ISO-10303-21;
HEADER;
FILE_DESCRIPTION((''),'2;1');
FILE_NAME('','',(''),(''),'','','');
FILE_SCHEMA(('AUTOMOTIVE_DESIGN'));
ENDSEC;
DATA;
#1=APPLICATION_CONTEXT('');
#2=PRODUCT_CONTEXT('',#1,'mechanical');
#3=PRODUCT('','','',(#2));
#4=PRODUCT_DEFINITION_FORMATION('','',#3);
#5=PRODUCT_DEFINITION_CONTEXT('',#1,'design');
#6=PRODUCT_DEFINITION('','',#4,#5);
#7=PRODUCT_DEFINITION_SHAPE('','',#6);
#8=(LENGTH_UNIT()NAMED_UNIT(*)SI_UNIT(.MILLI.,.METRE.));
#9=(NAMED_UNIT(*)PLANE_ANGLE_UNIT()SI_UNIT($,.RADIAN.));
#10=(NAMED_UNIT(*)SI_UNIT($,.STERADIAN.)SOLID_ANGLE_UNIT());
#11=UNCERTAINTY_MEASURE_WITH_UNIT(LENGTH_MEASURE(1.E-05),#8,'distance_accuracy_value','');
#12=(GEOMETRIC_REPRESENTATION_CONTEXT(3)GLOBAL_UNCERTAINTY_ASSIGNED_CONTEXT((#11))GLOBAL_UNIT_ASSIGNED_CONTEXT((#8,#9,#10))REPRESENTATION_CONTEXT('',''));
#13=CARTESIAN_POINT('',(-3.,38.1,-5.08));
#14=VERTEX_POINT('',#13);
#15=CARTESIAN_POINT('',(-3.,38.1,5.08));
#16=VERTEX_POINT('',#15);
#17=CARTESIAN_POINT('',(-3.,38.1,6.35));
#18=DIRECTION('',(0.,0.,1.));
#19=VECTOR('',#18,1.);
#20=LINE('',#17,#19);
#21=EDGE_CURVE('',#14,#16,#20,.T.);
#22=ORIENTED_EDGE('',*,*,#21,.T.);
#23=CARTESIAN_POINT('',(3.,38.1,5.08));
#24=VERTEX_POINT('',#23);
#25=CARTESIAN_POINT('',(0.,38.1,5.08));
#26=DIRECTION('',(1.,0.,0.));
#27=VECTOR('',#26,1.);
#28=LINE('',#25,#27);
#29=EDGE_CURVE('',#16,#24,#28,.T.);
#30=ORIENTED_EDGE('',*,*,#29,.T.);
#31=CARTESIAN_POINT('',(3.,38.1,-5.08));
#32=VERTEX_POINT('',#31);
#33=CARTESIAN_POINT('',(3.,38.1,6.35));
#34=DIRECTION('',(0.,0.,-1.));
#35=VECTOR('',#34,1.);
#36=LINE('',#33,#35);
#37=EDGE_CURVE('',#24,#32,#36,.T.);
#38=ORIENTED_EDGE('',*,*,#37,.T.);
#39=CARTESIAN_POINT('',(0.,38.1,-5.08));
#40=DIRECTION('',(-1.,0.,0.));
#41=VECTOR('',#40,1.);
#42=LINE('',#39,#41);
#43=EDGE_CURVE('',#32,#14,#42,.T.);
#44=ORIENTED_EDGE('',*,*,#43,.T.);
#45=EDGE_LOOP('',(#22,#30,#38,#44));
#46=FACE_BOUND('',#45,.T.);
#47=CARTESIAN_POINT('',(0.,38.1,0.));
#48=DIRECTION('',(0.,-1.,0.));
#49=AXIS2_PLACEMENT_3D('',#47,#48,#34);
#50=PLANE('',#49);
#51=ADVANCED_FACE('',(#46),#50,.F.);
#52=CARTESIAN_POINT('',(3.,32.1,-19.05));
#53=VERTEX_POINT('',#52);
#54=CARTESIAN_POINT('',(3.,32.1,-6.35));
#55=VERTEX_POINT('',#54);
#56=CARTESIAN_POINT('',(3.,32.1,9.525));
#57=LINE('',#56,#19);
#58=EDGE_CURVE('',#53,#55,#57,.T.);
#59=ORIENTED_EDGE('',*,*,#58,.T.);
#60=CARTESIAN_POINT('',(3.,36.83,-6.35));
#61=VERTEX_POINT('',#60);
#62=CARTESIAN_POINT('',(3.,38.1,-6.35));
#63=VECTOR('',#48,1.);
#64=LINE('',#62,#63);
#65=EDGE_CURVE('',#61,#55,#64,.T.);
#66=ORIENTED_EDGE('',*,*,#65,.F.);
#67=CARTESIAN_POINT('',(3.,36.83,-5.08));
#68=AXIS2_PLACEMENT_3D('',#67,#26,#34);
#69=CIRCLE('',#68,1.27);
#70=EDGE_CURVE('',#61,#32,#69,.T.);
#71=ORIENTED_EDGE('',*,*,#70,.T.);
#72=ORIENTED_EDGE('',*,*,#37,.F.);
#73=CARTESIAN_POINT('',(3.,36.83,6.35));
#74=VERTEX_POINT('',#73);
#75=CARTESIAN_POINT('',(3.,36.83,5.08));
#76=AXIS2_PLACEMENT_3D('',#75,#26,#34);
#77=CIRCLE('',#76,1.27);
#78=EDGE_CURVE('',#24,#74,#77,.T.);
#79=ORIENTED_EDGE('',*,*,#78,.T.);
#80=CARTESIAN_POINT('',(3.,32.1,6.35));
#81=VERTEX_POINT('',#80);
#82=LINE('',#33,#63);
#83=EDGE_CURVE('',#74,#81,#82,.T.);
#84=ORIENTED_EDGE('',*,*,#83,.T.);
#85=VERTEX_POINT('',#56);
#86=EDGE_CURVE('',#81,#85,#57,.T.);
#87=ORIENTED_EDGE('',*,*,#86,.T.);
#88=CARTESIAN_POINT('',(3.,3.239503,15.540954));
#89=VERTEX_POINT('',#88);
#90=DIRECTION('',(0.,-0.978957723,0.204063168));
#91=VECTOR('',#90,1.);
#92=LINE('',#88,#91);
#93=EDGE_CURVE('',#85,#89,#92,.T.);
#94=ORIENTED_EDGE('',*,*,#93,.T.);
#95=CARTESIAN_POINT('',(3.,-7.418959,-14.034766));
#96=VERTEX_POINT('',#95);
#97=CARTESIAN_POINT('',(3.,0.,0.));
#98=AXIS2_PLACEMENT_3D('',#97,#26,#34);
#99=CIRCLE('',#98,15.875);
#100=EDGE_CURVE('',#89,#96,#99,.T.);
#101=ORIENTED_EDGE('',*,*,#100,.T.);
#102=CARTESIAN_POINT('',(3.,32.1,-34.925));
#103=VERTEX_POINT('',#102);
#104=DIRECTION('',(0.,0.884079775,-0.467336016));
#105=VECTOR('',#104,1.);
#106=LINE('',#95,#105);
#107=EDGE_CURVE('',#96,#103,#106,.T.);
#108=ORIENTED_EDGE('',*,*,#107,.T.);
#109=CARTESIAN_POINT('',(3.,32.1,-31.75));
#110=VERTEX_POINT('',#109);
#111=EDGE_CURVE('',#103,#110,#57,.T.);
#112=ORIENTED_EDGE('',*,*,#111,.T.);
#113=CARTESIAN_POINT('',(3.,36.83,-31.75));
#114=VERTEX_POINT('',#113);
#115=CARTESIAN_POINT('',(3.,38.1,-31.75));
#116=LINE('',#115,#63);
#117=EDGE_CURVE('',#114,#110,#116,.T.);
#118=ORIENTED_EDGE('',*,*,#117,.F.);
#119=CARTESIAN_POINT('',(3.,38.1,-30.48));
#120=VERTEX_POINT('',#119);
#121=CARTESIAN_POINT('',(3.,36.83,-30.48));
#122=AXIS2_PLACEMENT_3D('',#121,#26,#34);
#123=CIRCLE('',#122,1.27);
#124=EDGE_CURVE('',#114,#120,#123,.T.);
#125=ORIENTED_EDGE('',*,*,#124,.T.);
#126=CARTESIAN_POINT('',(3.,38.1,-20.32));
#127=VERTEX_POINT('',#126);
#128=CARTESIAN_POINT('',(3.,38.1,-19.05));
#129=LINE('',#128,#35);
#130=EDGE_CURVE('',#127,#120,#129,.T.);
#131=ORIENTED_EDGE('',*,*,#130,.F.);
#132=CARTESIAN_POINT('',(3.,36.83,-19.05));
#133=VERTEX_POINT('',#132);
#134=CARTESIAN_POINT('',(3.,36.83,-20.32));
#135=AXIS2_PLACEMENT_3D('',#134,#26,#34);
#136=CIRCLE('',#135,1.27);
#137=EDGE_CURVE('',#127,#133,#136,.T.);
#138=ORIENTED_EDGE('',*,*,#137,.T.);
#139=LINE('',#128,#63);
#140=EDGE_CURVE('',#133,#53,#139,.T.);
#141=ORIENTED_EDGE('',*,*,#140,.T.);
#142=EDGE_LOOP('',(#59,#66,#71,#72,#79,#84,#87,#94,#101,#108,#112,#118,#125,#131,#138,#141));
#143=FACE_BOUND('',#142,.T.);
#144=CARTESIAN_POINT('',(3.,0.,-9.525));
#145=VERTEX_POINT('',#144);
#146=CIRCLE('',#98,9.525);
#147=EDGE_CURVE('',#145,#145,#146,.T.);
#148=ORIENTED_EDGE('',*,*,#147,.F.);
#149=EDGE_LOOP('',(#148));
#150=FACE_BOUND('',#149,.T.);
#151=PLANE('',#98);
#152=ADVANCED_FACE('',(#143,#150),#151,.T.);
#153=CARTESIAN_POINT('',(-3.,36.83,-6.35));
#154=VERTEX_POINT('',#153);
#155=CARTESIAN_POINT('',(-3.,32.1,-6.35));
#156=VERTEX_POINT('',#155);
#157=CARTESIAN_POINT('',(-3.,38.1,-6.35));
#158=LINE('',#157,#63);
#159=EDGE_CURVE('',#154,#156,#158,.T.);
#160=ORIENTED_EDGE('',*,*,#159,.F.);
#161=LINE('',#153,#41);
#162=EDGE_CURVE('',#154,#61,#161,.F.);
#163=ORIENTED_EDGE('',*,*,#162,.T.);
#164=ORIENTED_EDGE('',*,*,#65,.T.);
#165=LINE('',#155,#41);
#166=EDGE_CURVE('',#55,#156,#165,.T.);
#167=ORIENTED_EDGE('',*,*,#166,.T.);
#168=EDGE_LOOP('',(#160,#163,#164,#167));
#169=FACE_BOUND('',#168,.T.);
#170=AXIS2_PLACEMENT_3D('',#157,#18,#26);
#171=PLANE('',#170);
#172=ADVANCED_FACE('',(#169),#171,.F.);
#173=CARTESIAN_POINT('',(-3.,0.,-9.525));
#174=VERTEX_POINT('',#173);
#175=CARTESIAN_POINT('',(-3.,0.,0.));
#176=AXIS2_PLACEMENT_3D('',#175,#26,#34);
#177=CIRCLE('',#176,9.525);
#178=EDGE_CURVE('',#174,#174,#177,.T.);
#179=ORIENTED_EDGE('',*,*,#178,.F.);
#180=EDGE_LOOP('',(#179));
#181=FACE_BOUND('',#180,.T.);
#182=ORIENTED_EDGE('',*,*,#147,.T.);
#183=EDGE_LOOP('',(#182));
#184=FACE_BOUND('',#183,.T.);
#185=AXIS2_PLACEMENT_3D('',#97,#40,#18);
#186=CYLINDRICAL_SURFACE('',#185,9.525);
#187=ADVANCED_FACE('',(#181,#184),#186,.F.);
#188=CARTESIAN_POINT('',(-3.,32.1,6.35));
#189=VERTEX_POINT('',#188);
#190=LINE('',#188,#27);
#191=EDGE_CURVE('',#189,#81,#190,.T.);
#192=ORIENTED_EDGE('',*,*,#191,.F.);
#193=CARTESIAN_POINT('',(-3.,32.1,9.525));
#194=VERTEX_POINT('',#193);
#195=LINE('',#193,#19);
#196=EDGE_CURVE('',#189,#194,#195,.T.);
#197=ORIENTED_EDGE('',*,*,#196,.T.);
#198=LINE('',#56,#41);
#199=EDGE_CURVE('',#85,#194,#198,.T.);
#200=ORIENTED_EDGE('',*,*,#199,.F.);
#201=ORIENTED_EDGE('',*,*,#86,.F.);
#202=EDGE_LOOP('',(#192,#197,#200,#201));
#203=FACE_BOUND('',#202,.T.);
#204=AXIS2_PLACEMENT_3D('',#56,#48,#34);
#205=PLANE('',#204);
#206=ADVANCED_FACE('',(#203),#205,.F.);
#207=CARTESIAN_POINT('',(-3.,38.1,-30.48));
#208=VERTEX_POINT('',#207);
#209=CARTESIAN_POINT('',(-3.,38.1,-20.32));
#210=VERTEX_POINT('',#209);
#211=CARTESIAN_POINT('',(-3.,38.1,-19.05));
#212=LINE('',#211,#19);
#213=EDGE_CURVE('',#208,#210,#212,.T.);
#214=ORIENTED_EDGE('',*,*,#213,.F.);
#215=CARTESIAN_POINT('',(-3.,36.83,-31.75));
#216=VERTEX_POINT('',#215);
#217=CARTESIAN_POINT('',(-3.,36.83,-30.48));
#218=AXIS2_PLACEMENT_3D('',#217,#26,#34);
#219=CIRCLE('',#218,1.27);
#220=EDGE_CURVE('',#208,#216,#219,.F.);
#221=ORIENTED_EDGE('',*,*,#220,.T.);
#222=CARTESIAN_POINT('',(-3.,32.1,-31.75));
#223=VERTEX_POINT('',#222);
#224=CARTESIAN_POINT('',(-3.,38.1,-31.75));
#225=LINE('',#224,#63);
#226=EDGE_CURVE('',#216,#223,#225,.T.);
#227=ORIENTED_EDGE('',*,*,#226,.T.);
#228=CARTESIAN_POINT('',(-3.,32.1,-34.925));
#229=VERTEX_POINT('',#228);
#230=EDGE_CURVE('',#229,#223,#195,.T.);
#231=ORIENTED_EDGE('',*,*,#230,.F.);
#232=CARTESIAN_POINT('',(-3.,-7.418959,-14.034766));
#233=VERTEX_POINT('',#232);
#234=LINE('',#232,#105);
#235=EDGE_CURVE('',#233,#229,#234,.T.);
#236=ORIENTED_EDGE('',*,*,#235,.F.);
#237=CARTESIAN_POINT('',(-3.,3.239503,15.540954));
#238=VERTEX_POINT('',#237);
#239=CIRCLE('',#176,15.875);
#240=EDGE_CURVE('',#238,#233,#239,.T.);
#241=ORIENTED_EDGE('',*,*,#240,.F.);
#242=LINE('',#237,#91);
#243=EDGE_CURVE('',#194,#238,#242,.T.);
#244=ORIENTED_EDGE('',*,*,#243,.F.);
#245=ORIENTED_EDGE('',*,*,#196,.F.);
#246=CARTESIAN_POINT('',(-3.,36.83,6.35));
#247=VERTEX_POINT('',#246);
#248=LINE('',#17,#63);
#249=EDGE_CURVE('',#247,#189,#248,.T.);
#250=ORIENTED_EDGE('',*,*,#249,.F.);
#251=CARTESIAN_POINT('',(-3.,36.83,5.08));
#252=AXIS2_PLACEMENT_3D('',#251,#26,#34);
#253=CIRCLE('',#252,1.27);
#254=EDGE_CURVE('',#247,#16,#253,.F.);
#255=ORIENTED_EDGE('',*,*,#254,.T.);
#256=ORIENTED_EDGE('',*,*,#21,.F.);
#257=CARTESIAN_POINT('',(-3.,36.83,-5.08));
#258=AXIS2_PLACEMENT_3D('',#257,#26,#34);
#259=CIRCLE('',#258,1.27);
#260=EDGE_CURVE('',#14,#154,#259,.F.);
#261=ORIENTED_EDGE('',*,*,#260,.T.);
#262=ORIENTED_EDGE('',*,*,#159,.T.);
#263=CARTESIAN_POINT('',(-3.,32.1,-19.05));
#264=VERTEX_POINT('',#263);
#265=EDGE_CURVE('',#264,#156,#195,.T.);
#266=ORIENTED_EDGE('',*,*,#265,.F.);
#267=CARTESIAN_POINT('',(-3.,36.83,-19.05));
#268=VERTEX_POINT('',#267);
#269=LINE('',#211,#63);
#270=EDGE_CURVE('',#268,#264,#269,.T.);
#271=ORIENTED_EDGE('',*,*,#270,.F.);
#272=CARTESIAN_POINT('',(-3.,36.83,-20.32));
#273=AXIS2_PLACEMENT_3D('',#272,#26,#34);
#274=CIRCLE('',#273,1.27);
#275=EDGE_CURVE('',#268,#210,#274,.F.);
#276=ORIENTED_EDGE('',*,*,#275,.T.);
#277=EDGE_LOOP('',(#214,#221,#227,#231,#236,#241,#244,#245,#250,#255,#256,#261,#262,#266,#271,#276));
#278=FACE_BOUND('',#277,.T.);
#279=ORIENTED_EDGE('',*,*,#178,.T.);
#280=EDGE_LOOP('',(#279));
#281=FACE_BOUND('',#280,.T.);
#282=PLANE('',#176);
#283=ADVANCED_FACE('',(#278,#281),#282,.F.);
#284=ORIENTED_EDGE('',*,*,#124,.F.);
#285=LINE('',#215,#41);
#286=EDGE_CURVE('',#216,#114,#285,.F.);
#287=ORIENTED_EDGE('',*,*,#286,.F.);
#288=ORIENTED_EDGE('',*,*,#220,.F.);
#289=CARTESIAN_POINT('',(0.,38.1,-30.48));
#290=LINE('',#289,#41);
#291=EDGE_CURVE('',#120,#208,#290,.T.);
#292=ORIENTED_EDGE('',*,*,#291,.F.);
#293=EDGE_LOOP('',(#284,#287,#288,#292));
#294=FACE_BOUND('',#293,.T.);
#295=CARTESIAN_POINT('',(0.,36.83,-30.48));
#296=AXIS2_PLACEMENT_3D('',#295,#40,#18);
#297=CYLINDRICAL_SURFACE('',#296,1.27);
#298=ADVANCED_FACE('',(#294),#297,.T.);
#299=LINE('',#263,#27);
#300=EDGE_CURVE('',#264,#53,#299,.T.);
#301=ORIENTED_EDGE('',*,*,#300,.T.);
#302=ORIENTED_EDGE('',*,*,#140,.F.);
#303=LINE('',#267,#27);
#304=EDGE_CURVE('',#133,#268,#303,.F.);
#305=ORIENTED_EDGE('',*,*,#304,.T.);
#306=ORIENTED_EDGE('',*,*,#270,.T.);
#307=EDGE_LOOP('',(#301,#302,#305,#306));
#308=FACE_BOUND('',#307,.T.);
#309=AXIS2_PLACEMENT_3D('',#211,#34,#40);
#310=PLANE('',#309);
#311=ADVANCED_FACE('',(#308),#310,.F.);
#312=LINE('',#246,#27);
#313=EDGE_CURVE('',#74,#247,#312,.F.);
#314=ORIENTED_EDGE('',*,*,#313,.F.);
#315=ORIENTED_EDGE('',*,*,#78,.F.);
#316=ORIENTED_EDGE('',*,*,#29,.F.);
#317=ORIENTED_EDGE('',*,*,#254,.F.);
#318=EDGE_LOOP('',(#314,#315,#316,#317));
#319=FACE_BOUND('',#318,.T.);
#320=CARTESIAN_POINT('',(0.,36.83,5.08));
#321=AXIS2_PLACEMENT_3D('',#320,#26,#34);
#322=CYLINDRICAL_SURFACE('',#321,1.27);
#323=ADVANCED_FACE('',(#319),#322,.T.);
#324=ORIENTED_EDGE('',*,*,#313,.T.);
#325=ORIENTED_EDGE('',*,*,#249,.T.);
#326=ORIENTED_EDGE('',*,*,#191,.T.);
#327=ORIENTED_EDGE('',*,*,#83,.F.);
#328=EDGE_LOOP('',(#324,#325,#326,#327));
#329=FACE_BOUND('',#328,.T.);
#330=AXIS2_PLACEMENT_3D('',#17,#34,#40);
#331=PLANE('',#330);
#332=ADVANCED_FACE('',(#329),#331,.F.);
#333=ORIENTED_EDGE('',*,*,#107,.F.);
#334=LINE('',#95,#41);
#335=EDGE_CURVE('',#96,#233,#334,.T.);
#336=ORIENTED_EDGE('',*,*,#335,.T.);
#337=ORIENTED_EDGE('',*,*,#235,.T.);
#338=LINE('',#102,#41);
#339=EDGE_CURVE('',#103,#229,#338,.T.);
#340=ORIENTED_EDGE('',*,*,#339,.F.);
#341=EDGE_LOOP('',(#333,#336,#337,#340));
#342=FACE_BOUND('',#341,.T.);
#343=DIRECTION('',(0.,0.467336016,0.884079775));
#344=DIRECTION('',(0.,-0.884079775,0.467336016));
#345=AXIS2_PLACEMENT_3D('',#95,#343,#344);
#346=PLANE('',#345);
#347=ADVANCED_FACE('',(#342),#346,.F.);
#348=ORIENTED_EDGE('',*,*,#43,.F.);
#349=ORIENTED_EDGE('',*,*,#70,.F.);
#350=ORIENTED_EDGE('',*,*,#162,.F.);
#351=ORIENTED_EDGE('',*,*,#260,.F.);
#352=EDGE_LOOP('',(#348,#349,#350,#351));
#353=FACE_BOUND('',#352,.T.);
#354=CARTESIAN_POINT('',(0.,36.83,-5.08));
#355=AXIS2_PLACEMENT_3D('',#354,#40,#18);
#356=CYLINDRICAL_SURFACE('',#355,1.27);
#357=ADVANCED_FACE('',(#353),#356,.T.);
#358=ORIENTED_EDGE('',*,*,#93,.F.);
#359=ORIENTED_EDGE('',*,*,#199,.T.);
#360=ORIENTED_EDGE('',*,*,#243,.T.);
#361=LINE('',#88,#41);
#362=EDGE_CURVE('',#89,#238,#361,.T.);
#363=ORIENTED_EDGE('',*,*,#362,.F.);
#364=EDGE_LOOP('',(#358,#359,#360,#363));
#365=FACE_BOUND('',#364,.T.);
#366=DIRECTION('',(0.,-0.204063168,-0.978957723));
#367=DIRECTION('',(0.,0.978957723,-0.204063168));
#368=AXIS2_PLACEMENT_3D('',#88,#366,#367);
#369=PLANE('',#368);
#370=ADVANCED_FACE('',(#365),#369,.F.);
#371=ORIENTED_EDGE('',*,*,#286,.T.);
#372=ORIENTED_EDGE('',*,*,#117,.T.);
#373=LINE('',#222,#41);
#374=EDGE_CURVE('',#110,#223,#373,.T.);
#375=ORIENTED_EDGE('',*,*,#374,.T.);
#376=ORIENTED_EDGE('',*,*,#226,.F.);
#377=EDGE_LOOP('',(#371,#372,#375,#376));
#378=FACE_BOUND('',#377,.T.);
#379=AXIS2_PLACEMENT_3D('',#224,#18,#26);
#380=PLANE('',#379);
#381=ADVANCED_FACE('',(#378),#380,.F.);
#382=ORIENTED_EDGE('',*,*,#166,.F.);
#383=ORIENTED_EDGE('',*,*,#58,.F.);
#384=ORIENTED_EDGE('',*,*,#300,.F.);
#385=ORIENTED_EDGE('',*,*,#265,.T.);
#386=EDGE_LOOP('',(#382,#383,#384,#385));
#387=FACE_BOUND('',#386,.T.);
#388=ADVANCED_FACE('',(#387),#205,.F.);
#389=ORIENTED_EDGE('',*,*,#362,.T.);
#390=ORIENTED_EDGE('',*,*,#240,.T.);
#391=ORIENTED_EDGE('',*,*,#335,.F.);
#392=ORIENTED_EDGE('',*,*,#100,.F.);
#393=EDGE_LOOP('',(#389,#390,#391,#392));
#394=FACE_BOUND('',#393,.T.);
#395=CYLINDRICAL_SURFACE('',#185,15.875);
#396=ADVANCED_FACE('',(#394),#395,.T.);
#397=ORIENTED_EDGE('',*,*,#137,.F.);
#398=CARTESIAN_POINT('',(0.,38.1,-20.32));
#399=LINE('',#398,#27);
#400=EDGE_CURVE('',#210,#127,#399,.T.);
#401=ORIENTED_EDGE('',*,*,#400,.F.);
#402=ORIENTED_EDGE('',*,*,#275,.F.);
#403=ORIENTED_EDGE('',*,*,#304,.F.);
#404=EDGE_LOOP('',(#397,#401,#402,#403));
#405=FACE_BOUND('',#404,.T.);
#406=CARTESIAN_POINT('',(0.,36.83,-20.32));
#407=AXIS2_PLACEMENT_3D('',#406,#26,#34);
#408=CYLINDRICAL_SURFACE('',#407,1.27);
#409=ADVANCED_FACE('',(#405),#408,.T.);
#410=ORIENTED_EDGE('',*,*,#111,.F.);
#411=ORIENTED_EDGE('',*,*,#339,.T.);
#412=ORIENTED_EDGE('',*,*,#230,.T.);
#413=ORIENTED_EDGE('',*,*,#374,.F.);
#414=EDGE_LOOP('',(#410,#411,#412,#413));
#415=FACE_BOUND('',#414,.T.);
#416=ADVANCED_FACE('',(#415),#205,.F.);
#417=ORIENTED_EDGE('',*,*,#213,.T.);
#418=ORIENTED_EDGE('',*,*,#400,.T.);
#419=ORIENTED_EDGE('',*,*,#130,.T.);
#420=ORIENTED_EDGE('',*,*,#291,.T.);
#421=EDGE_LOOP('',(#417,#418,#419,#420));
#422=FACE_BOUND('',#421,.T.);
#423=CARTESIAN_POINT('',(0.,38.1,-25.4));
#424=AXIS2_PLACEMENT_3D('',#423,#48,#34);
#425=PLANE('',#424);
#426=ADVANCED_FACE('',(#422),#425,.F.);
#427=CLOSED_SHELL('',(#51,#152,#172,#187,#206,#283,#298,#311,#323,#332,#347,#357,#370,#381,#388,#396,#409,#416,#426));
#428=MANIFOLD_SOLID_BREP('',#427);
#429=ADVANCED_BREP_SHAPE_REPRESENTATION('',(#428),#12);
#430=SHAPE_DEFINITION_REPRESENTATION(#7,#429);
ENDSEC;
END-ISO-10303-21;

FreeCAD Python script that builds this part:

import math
import FreeCAD as App
import Part
import Sketcher

V = App.Vector
Q = App.Units.Quantity


def edges_at(feature, points):
    """Names of the edges that pass closest to the given points."""
    edges = feature.Shape.Edges
    near = lambda p: min(range(len(edges)), key=lambda i: edges[i].distToShape(Part.Vertex(*p))[0])
    return sorted({f"Edge{near(p) + 1}" for p in points})

doc = App.newDocument("Part")
body = doc.addObject("PartDesign::Body", "Body")

sketch1 = body.newObject("Sketcher::SketchObject", "Sketch")
sketch1.AttachmentSupport = (doc.getObject("YZ_Plane"), [""])
sketch1.MapMode = "FlatFace"
sketch1.addGeometry([
    Part.LineSegment(V(32.1, 9.525, 0), V(3.239503, 15.540954, 0)),
    Part.ArcOfCircle(Part.Circle(V(0, 0, 0), V(0, 0, 1), 15.875), math.radians(78.225337), math.radians(242.13849)),
    Part.LineSegment(V(-7.418959, -14.034766, 0), V(32.1, -34.925, 0)),
    Part.LineSegment(V(32.1, -34.925, 0), V(32.1, 9.525, 0)),
    Part.Circle(V(0, 0, 0), V(0, 0, 1), 9.525),
], False)
sketch1.addConstraint([
    Sketcher.Constraint("Tangent", 0, 2, 1, 1),
    Sketcher.Constraint("Tangent", 1, 2, 2, 1),
    Sketcher.Constraint("Coincident", 2, 2, 3, 1),
    Sketcher.Constraint("Coincident", 3, 2, 0, 1),
    Sketcher.Constraint("Vertical", 3),
    Sketcher.Constraint("Coincident", 1, 3, -1, 1),
    Sketcher.Constraint("Coincident", 4, 3, -1, 1),
    Sketcher.Constraint("Diameter", 4, Q("0.75 in")),
    Sketcher.Constraint("Radius", 1, Q("0.625 in")),
    Sketcher.Constraint("DistanceY", 3, 1, 3, 2, Q("1.75 in")),
    Sketcher.Constraint("DistanceY", 2, 2, -1, 1, Q("1.375 in")),
    Sketcher.Constraint("DistanceX", -1, 1, 2, 2, Q("32.1 mm")),
])
pad1 = body.newObject("PartDesign::Pad", "Pad")
pad1.Profile = sketch1
pad1.Length = 6
pad1.Midplane = True

sketch2 = body.newObject("Sketcher::SketchObject", "Sketch001")
sketch2.AttachmentSupport = (doc.getObject("XZ_Plane"), [""])
sketch2.MapMode = "FlatFace"
sketch2.AttachmentOffset = App.Placement(V(0, 0, -32.1), App.Rotation())
sketch2.addGeometry([
    Part.LineSegment(V(-3, -6.35, 0), V(-3, 6.35, 0)),
    Part.LineSegment(V(-3, 6.35, 0), V(3, 6.35, 0)),
    Part.LineSegment(V(3, 6.35, 0), V(3, -6.35, 0)),
    Part.LineSegment(V(3, -6.35, 0), V(-3, -6.35, 0)),
], False)
sketch2.addConstraint([
    Sketcher.Constraint("Coincident", 0, 2, 1, 1),
    Sketcher.Constraint("Coincident", 1, 2, 2, 1),
    Sketcher.Constraint("Coincident", 2, 2, 3, 1),
    Sketcher.Constraint("Coincident", 3, 2, 0, 1),
    Sketcher.Constraint("Vertical", 0),
    Sketcher.Constraint("Horizontal", 1),
    Sketcher.Constraint("Vertical", 2),
    Sketcher.Constraint("Horizontal", 3),
    Sketcher.Constraint("Symmetric", 0, 2, 2, 2, -1, 1),
    Sketcher.Constraint("DistanceY", 0, 1, 0, 2, Q("0.5 in")),
    Sketcher.Constraint("DistanceX", 1, 1, 1, 2, Q("6 mm")),
])
pad2 = body.newObject("PartDesign::Pad", "Pad001")
pad2.Profile = sketch2
pad2.Length = 6
pad2.Reversed = True
doc.recompute()

fillet = body.newObject("PartDesign::Fillet", "Fillet")
fillet.Base = (pad2, edges_at(pad2, [(0, 38.1, -6.35), (0, 38.1, 6.35)]))
fillet.Radius = Q("0.05 in")
doc.recompute()

linearpattern = body.newObject("PartDesign::LinearPattern", "LinearPattern")
linearpattern.Originals = [pad2]
linearpattern.Direction = (doc.getObject("Z_Axis"), [""])
linearpattern.Mode = "offset"
linearpattern.Offset = Q("1 in")
linearpattern.Occurrences = 2
linearpattern.Reversed = True
body.Tip = linearpattern
doc.recompute()

fillet2 = body.newObject("PartDesign::Fillet", "Fillet001")
fillet2.Base = (linearpattern, edges_at(linearpattern, [(0, 38.1, -31.75), (0, 38.1, -19.05)]))
fillet2.Radius = Q("0.05 in")

doc.recompute()
